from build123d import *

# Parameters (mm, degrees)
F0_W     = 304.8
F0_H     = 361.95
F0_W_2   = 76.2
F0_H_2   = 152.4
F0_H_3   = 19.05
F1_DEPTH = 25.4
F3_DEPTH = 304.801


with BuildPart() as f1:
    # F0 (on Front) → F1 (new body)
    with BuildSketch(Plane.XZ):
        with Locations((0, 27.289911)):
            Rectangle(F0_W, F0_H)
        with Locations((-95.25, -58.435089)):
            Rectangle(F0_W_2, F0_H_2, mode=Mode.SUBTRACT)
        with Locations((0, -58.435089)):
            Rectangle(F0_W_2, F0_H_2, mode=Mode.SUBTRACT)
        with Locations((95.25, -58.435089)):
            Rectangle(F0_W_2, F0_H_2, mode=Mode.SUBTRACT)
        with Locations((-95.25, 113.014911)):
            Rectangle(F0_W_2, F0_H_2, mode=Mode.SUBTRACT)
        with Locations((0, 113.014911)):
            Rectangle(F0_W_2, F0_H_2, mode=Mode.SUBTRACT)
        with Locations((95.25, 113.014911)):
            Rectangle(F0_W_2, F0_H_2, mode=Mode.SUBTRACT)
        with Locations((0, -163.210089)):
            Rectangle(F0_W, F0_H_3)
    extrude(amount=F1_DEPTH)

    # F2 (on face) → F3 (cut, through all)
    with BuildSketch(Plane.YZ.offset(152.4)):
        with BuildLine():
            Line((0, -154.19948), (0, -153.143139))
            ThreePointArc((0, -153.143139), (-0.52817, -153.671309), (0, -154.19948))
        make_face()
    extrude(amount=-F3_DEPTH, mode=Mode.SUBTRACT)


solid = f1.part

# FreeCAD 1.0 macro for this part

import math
import FreeCAD as App
import Part
import Sketcher
Q = App.Units.Quantity

doc = App.newDocument("Part")
body = doc.addObject("PartDesign::Body", "Body")

sketch1 = body.newObject("Sketcher::SketchObject", "Sketch")
sketch1.AttachmentSupport = (doc.getObject("XZ_Plane"), [""])
sketch1.MapMode = "FlatFace"
sketch1.addGeometry(Part.LineSegment(App.Vector(-152, 208, 0), App.Vector(-152, -173, 0)), False)
sketch1.addGeometry(Part.LineSegment(App.Vector(-152, -173, 0), App.Vector(152, -173, 0)), False)
sketch1.addGeometry(Part.LineSegment(App.Vector(152, -173, 0), App.Vector(152, 208, 0)), False)
sketch1.addGeometry(Part.LineSegment(App.Vector(152, 208, 0), App.Vector(-152, 208, 0)), False)
sketch1.addGeometry(Part.LineSegment(App.Vector(-57, -135, 0), App.Vector(-133, -135, 0)), False)
sketch1.addGeometry(Part.LineSegment(App.Vector(-133, -135, 0), App.Vector(-133, 18, 0)), False)
sketch1.addGeometry(Part.LineSegment(App.Vector(-133, 18, 0), App.Vector(-57, 18, 0)), False)
sketch1.addGeometry(Part.LineSegment(App.Vector(-57, 18, 0), App.Vector(-57, -135, 0)), False)
sketch1.addGeometry(Part.LineSegment(App.Vector(38, -135, 0), App.Vector(-38, -135, 0)), False)
sketch1.addGeometry(Part.LineSegment(App.Vector(-38, -135, 0), App.Vector(-38, 18, 0)), False)
sketch1.addGeometry(Part.LineSegment(App.Vector(-38, 18, 0), App.Vector(38, 18, 0)), False)
sketch1.addGeometry(Part.LineSegment(App.Vector(38, 18, 0), App.Vector(38, -135, 0)), False)
sketch1.addGeometry(Part.LineSegment(App.Vector(133, -135, 0), App.Vector(57, -135, 0)), False)
sketch1.addGeometry(Part.LineSegment(App.Vector(57, -135, 0), App.Vector(57, 18, 0)), False)
sketch1.addGeometry(Part.LineSegment(App.Vector(57, 18, 0), App.Vector(133, 18, 0)), False)
sketch1.addGeometry(Part.LineSegment(App.Vector(133, 18, 0), App.Vector(133, -135, 0)), False)
sketch1.addGeometry(Part.LineSegment(App.Vector(-57, 37, 0), App.Vector(-133, 37, 0)), False)
sketch1.addGeometry(Part.LineSegment(App.Vector(-133, 37, 0), App.Vector(-133, 189, 0)), False)
sketch1.addGeometry(Part.LineSegment(App.Vector(-133, 189, 0), App.Vector(-57, 189, 0)), False)
sketch1.addGeometry(Part.LineSegment(App.Vector(-57, 189, 0), App.Vector(-57, 37, 0)), False)
sketch1.addGeometry(Part.LineSegment(App.Vector(38, 37, 0), App.Vector(-38, 37, 0)), False)
sketch1.addGeometry(Part.LineSegment(App.Vector(-38, 37, 0), App.Vector(-38, 189, 0)), False)
sketch1.addGeometry(Part.LineSegment(App.Vector(-38, 189, 0), App.Vector(38, 189, 0)), False)
sketch1.addGeometry(Part.LineSegment(App.Vector(38, 189, 0), App.Vector(38, 37, 0)), False)
sketch1.addGeometry(Part.LineSegment(App.Vector(133, 37, 0), App.Vector(57, 37, 0)), False)
sketch1.addGeometry(Part.LineSegment(App.Vector(57, 37, 0), App.Vector(57, 189, 0)), False)
sketch1.addGeometry(Part.LineSegment(App.Vector(57, 189, 0), App.Vector(133, 189, 0)), False)
sketch1.addGeometry(Part.LineSegment(App.Vector(133, 189, 0), App.Vector(133, 37, 0)), False)
sketch1.addConstraint(Sketcher.Constraint("Coincident", 0, 2, 1, 1))
sketch1.addConstraint(Sketcher.Constraint("Coincident", 1, 2, 2, 1))
sketch1.addConstraint(Sketcher.Constraint("Coincident", 2, 2, 3, 1))
sketch1.addConstraint(Sketcher.Constraint("Coincident", 3, 2, 0, 1))
sketch1.addConstraint(Sketcher.Constraint("Coincident", 4, 2, 5, 1))
sketch1.addConstraint(Sketcher.Constraint("Coincident", 5, 2, 6, 1))
sketch1.addConstraint(Sketcher.Constraint("Coincident", 6, 2, 7, 1))
sketch1.addConstraint(Sketcher.Constraint("Coincident", 7, 2, 4, 1))
sketch1.addConstraint(Sketcher.Constraint("Coincident", 8, 2, 9, 1))
sketch1.addConstraint(Sketcher.Constraint("Coincident", 9, 2, 10, 1))
sketch1.addConstraint(Sketcher.Constraint("Coincident", 10, 2, 11, 1))
sketch1.addConstraint(Sketcher.Constraint("Coincident", 11, 2, 8, 1))
sketch1.addConstraint(Sketcher.Constraint("Coincident", 12, 2, 13, 1))
sketch1.addConstraint(Sketcher.Constraint("Coincident", 13, 2, 14, 1))
sketch1.addConstraint(Sketcher.Constraint("Coincident", 14, 2, 15, 1))
sketch1.addConstraint(Sketcher.Constraint("Coincident", 15, 2, 12, 1))
sketch1.addConstraint(Sketcher.Constraint("Coincident", 16, 2, 17, 1))
sketch1.addConstraint(Sketcher.Constraint("Coincident", 17, 2, 18, 1))
sketch1.addConstraint(Sketcher.Constraint("Coincident", 18, 2, 19, 1))
sketch1.addConstraint(Sketcher.Constraint("Coincident", 19, 2, 16, 1))
sketch1.addConstraint(Sketcher.Constraint("Coincident", 20, 2, 21, 1))
sketch1.addConstraint(Sketcher.Constraint("Coincident", 21, 2, 22, 1))
sketch1.addConstraint(Sketcher.Constraint("Coincident", 22, 2, 23, 1))
sketch1.addConstraint(Sketcher.Constraint("Coincident", 23, 2, 20, 1))
sketch1.addConstraint(Sketcher.Constraint("Coincident", 24, 2, 25, 1))
sketch1.addConstraint(Sketcher.Constraint("Coincident", 25, 2, 26, 1))
sketch1.addConstraint(Sketcher.Constraint("Coincident", 26, 2, 27, 1))
sketch1.addConstraint(Sketcher.Constraint("Coincident", 27, 2, 24, 1))
sketch1.addConstraint(Sketcher.Constraint("Vertical", 0))
sketch1.addConstraint(Sketcher.Constraint("Horizontal", 1))
sketch1.addConstraint(Sketcher.Constraint("Vertical", 2))
sketch1.addConstraint(Sketcher.Constraint("Horizontal", 3))
sketch1.addConstraint(Sketcher.Constraint("Horizontal", 4))
sketch1.addConstraint(Sketcher.Constraint("Vertical", 5))
sketch1.addConstraint(Sketcher.Constraint("Horizontal", 6))
sketch1.addConstraint(Sketcher.Constraint("Vertical", 7))
sketch1.addConstraint(Sketcher.Constraint("Horizontal", 8))
sketch1.addConstraint(Sketcher.Constraint("Vertical", 9))
sketch1.addConstraint(Sketcher.Constraint("Horizontal", 10))
sketch1.addConstraint(Sketcher.Constraint("Vertical", 11))
sketch1.addConstraint(Sketcher.Constraint("Horizontal", 12))
sketch1.addConstraint(Sketcher.Constraint("Vertical", 13))
sketch1.addConstraint(Sketcher.Constraint("Horizontal", 14))
sketch1.addConstraint(Sketcher.Constraint("Vertical", 15))
sketch1.addConstraint(Sketcher.Constraint("Horizontal", 16))
sketch1.addConstraint(Sketcher.Constraint("Vertical", 17))
sketch1.addConstraint(Sketcher.Constraint("Horizontal", 18))
sketch1.addConstraint(Sketcher.Constraint("Vertical", 19))
sketch1.addConstraint(Sketcher.Constraint("Horizontal", 20))
sketch1.addConstraint(Sketcher.Constraint("Vertical", 21))
sketch1.addConstraint(Sketcher.Constraint("Horizontal", 22))
sketch1.addConstraint(Sketcher.Constraint("Vertical", 23))
sketch1.addConstraint(Sketcher.Constraint("Horizontal", 24))
sketch1.addConstraint(Sketcher.Constraint("Vertical", 25))
sketch1.addConstraint(Sketcher.Constraint("Horizontal", 26))
sketch1.addConstraint(Sketcher.Constraint("Vertical", 27))
sketch1.addConstraint(Sketcher.Constraint("Symmetric", 7, 2, 12, 2, -2))
sketch1.addConstraint(Sketcher.Constraint("Symmetric", 5, 2, 14, 2, -2))
sketch1.addConstraint(Sketcher.Constraint("Symmetric", 19, 2, 24, 2, -2))
sketch1.addConstraint(Sketcher.Constraint("Symmetric", 17, 2, 26, 2, -2))
sketch1.addConstraint(Sketcher.Constraint("Horizontal", 7, 2, 8, 2))
sketch1.addConstraint(Sketcher.Constraint("Horizontal", 6, 2, 9, 2))
sketch1.addConstraint(Sketcher.Constraint("Horizontal", 19, 2, 20, 2))
sketch1.addConstraint(Sketcher.Constraint("Horizontal", 18, 2, 21, 2))
sketch1.addConstraint(Sketcher.Constraint("Vertical", 5, 2, 16, 2))
sketch1.addConstraint(Sketcher.Constraint("Vertical", 7, 2, 18, 2))
sketch1.addConstraint(Sketcher.Constraint("Vertical", 9, 2, 20, 2))
sketch1.addConstraint(Sketcher.Constraint("Vertical", 11, 2, 22, 2))
sketch1.addConstraint(Sketcher.Constraint("Equal", 6, 8))
sketch1.addConstraint(Sketcher.Constraint("Equal", 15, 17))
sketch1.addConstraint(Sketcher.Constraint("DistanceX", 1, 1, 1, 2, Q("12 in")))
sketch1.addConstraint(Sketcher.Constraint("DistanceX", 4, 2, 4, 1, Q("3 in")))
sketch1.addConstraint(Sketcher.Constraint("DistanceY", 0, 2, 0, 1, Q("15 in")))
sketch1.addConstraint(Sketcher.Constraint("DistanceY", 5, 1, 5, 2, Q("6 in")))
sketch1.addConstraint(Sketcher.Constraint("DistanceX", 0, 2, -1, 1, Q("6 in")))
sketch1.addConstraint(Sketcher.Constraint("DistanceX", 8, 2, -1, 1, Q("1.5 in")))
sketch1.addConstraint(Sketcher.Constraint("DistanceY", 0, 2, 4, 2, Q("1.5 in")))
sketch1.addConstraint(Sketcher.Constraint("DistanceX", 7, 2, 12, 2, Q("4.5 in")))
sketch1.addConstraint(Sketcher.Constraint("DistanceY", 5, 2, 16, 2, Q("0.75 in")))
sketch1.addConstraint(Sketcher.Constraint("DistanceY", 0, 2, -1, 1, 172.735089))
pad1 = body.newObject("PartDesign::Pad", "Pad")
pad1.Profile = sketch1
pad1.Length = Q("1 in")

sketch2 = body.newObject("Sketcher::SketchObject", "Sketch001")
sketch2.AttachmentSupport = (doc.getObject("YZ_Plane"), [""])
sketch2.MapMode = "FlatFace"
sketch2.AttachmentOffset = App.Placement(App.Vector(0, 0, 6 * 25.4), App.Rotation())
sketch2.addGeometry(Part.LineSegment(App.Vector(0, -154.2, 0), App.Vector(0, -153.1, 0)), False)
sketch2.addGeometry(Part.ArcOfCircle(Part.Circle(App.Vector(0, -153.7, 0), App.Vector(0, 0, 1), 0.5), math.radians(90), math.radians(270)), False)
sketch2.addConstraint(Sketcher.Constraint("Coincident", 0, 1, 1, 2))
sketch2.addConstraint(Sketcher.Constraint("Coincident", 1, 1, 0, 2))
sketch2.addConstraint(Sketcher.Constraint("Vertical", 0))
sketch2.addConstraint(Sketcher.Constraint("PointOnObject", 1, 3, -2))
sketch2.addConstraint(Sketcher.Constraint("PointOnObject", 0, 1, -2))
sketch2.addConstraint(Sketcher.Constraint("Radius", 1, 0.52817))
sketch2.addConstraint(Sketcher.Constraint("DistanceY", 1, 3, -1, 1, 153.67131))
pocket1 = body.newObject("PartDesign::Pocket", "Pocket")
pocket1.Profile = sketch2
pocket1.Type = "ThroughAll"

doc.recompute()
